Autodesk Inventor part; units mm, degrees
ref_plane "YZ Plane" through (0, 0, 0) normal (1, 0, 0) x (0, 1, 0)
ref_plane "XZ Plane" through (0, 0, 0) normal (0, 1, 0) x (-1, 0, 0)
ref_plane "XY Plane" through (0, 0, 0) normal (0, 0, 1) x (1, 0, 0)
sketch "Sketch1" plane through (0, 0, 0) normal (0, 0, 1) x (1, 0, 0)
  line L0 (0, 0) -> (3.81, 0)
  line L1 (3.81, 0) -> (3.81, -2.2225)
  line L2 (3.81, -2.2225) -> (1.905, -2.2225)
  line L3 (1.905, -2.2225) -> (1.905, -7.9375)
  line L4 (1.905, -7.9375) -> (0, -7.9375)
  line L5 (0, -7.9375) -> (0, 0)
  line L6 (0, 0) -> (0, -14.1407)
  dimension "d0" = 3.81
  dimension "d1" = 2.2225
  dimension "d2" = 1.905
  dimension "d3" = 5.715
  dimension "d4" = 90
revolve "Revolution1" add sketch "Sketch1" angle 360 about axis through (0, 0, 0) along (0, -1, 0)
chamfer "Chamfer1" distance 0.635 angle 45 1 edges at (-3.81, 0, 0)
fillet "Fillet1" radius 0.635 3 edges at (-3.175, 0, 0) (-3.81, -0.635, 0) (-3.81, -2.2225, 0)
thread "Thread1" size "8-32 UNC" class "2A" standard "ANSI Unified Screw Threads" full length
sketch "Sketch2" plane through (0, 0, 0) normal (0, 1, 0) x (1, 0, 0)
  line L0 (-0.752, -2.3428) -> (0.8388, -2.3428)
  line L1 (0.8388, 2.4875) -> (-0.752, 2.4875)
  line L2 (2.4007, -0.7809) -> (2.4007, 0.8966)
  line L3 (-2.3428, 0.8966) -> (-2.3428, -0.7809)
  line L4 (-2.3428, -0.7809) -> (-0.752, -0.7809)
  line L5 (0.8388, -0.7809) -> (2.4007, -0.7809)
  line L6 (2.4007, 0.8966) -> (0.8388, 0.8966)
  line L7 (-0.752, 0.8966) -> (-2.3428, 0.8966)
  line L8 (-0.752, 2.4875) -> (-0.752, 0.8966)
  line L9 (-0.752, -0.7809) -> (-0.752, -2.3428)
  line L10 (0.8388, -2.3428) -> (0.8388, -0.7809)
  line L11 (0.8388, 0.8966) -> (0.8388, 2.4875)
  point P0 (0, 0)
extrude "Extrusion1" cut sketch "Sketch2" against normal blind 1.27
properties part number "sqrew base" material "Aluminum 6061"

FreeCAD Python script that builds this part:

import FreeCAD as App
import Part
import Sketcher
from FreeCAD import Vector
Q = App.Units.Quantity


def edges_at(feature, points):
    """Names of the edges that pass closest to the given points."""
    edges = feature.Shape.Edges
    near = lambda p: min(range(len(edges)), key=lambda i: edges[i].distToShape(Part.Vertex(*p))[0])
    return sorted({f"Edge{near(p) + 1}" for p in points})

doc = App.newDocument("Part")
body = doc.addObject("PartDesign::Body", "Body")

# Sketch on XY plane
sketch1 = body.newObject("Sketcher::SketchObject", "Sketch")
sketch1.AttachmentSupport = (doc.getObject("XY_Plane"), [""])
sketch1.MapMode = "FlatFace"
sketch1.addGeometry([
    Part.LineSegment(Vector(3.81, 0, 0), Vector(0, 0, 0)),  # 0
    Part.LineSegment(Vector(0, 0, 0), Vector(0, -7.9375, 0)),  # 1
    Part.LineSegment(Vector(0, -7.9375, 0), Vector(1.905, -7.9375, 0)),  # 2
    Part.LineSegment(Vector(1.905, -7.9375, 0), Vector(1.905, -2.2225, 0)),  # 3
    Part.LineSegment(Vector(1.905, -2.2225, 0), Vector(3.81, -2.2225, 0)),  # 4
    Part.LineSegment(Vector(3.81, -2.2225, 0), Vector(3.81, 0, 0)),  # 5
], False)
sketch1.addConstraint([
    Sketcher.Constraint("Coincident", 0, 2, 1, 1),
    Sketcher.Constraint("Coincident", 1, 2, 2, 1),
    Sketcher.Constraint("Coincident", 2, 2, 3, 1),
    Sketcher.Constraint("Coincident", 3, 2, 4, 1),
    Sketcher.Constraint("Coincident", 4, 2, 5, 1),
    Sketcher.Constraint("Coincident", 5, 2, 0, 1),
    Sketcher.Constraint("Horizontal", 0),
    Sketcher.Constraint("Vertical", 1),
    Sketcher.Constraint("Horizontal", 2),
    Sketcher.Constraint("Vertical", 3),
    Sketcher.Constraint("Horizontal", 4),
    Sketcher.Constraint("Vertical", 5),
    Sketcher.Constraint("Coincident", 0, 2, -1, 1),
    Sketcher.Constraint("Equal", 2, 4),
    Sketcher.Constraint("DistanceX", 0, 2, 0, 1, Q("0.15 in")),
    Sketcher.Constraint("DistanceY", 3, 1, 3, 2, Q("0.225 in")),
    Sketcher.Constraint("DistanceY", 5, 1, 5, 2, Q("0.0875 in")),
])
revolution = body.newObject("PartDesign::Revolution", "Revolution")
revolution.Profile = sketch1
revolution.ReferenceAxis = (sketch1, ["V_Axis"])
revolution.Angle = 360
doc.recompute()

chamfer = body.newObject("PartDesign::Chamfer", "Chamfer")
chamfer.Base = (revolution, edges_at(revolution, [(-3.81, 0, 0)]))
chamfer.Size = Q("0.025 in")
doc.recompute()

fillet = body.newObject("PartDesign::Fillet", "Fillet")
fillet.Base = (chamfer, edges_at(chamfer, [(-3.175, 0, 0), (-3.81, -0.635, 0), (-3.81, -2.223, 0)]))
fillet.Radius = Q("0.025 in")

# Sketch on XZ plane
sketch2 = body.newObject("Sketcher::SketchObject", "Sketch001")
sketch2.AttachmentSupport = (doc.getObject("XZ_Plane"), [""])
sketch2.MapMode = "FlatFace"
sketch2.addGeometry([
    Part.LineSegment(Vector(-0.752, 0.7809, 0), Vector(-0.752, 2.3428, 0)),  # 0
    Part.LineSegment(Vector(-0.752, 2.3428, 0), Vector(0.8388, 2.3428, 0)),  # 1
    Part.LineSegment(Vector(0.8388, 2.3428, 0), Vector(0.8388, 0.7809, 0)),  # 2
    Part.LineSegment(Vector(0.8388, 0.7809, 0), Vector(2.4007, 0.7809, 0)),  # 3
    Part.LineSegment(Vector(2.4007, 0.7809, 0), Vector(2.4007, -0.8966, 0)),  # 4
    Part.LineSegment(Vector(2.4007, -0.8966, 0), Vector(0.8388, -0.8966, 0)),  # 5
    Part.LineSegment(Vector(0.8388, -0.8966, 0), Vector(0.8388, -2.4875, 0)),  # 6
    Part.LineSegment(Vector(0.8388, -2.4875, 0), Vector(-0.752, -2.4875, 0)),  # 7
    Part.LineSegment(Vector(-0.752, -2.4875, 0), Vector(-0.752, -0.8966, 0)),  # 8
    Part.LineSegment(Vector(-0.752, -0.8966, 0), Vector(-2.3428, -0.8966, 0)),  # 9
    Part.LineSegment(Vector(-2.3428, -0.8966, 0), Vector(-2.3428, 0.7809, 0)),  # 10
    Part.LineSegment(Vector(-2.3428, 0.7809, 0), Vector(-0.752, 0.7809, 0)),  # 11
], False)
sketch2.addConstraint([
    Sketcher.Constraint("Coincident", 0, 2, 1, 1),
    Sketcher.Constraint("Coincident", 1, 2, 2, 1),
    Sketcher.Constraint("Coincident", 2, 2, 3, 1),
    Sketcher.Constraint("Coincident", 3, 2, 4, 1),
    Sketcher.Constraint("Coincident", 4, 2, 5, 1),
    Sketcher.Constraint("Coincident", 5, 2, 6, 1),
    Sketcher.Constraint("Coincident", 6, 2, 7, 1),
    Sketcher.Constraint("Coincident", 7, 2, 8, 1),
    Sketcher.Constraint("Coincident", 8, 2, 9, 1),
    Sketcher.Constraint("Coincident", 9, 2, 10, 1),
    Sketcher.Constraint("Coincident", 10, 2, 11, 1),
    Sketcher.Constraint("Coincident", 11, 2, 0, 1),
    Sketcher.Constraint("Vertical", 0),
    Sketcher.Constraint("Horizontal", 1),
    Sketcher.Constraint("Vertical", 2),
    Sketcher.Constraint("Horizontal", 3),
    Sketcher.Constraint("Vertical", 4),
    Sketcher.Constraint("Horizontal", 5),
    Sketcher.Constraint("Vertical", 6),
    Sketcher.Constraint("Horizontal", 7),
    Sketcher.Constraint("Vertical", 8),
    Sketcher.Constraint("Horizontal", 9),
    Sketcher.Constraint("Vertical", 10),
    Sketcher.Constraint("Horizontal", 11),
    Sketcher.Constraint("Horizontal", 5, 2, 8, 2),
    Sketcher.Constraint("Horizontal", 3, 2, 10, 2),
    Sketcher.Constraint("Vertical", 2, 2, 5, 2),
    Sketcher.Constraint("Vertical", 0, 2, 7, 2),
    Sketcher.Constraint("Equal", 7, 9),
    Sketcher.Constraint("Equal", 5, 0),
    Sketcher.Constraint("Equal", 11, 6),
    Sketcher.Constraint("DistanceX", 3, 1, 3, 2, Q("0.0615 in")),
    Sketcher.Constraint("DistanceX", 1, 1, 1, 2, Q("1.5908 mm")),
    Sketcher.Constraint("DistanceY", 4, 2, 4, 1, Q("1.6775 mm")),
    Sketcher.Constraint("DistanceX", 0, 2, -1, 1, Q("0.0296 in")),
    Sketcher.Constraint("DistanceY", 4, 2, -1, 1, Q("0.0353 in")),
])
pocket1 = body.newObject("PartDesign::Pocket", "Pocket")
pocket1.Profile = sketch2
pocket1.Length = Q("0.05 in")
pocket1.Reversed = True

doc.recompute()
